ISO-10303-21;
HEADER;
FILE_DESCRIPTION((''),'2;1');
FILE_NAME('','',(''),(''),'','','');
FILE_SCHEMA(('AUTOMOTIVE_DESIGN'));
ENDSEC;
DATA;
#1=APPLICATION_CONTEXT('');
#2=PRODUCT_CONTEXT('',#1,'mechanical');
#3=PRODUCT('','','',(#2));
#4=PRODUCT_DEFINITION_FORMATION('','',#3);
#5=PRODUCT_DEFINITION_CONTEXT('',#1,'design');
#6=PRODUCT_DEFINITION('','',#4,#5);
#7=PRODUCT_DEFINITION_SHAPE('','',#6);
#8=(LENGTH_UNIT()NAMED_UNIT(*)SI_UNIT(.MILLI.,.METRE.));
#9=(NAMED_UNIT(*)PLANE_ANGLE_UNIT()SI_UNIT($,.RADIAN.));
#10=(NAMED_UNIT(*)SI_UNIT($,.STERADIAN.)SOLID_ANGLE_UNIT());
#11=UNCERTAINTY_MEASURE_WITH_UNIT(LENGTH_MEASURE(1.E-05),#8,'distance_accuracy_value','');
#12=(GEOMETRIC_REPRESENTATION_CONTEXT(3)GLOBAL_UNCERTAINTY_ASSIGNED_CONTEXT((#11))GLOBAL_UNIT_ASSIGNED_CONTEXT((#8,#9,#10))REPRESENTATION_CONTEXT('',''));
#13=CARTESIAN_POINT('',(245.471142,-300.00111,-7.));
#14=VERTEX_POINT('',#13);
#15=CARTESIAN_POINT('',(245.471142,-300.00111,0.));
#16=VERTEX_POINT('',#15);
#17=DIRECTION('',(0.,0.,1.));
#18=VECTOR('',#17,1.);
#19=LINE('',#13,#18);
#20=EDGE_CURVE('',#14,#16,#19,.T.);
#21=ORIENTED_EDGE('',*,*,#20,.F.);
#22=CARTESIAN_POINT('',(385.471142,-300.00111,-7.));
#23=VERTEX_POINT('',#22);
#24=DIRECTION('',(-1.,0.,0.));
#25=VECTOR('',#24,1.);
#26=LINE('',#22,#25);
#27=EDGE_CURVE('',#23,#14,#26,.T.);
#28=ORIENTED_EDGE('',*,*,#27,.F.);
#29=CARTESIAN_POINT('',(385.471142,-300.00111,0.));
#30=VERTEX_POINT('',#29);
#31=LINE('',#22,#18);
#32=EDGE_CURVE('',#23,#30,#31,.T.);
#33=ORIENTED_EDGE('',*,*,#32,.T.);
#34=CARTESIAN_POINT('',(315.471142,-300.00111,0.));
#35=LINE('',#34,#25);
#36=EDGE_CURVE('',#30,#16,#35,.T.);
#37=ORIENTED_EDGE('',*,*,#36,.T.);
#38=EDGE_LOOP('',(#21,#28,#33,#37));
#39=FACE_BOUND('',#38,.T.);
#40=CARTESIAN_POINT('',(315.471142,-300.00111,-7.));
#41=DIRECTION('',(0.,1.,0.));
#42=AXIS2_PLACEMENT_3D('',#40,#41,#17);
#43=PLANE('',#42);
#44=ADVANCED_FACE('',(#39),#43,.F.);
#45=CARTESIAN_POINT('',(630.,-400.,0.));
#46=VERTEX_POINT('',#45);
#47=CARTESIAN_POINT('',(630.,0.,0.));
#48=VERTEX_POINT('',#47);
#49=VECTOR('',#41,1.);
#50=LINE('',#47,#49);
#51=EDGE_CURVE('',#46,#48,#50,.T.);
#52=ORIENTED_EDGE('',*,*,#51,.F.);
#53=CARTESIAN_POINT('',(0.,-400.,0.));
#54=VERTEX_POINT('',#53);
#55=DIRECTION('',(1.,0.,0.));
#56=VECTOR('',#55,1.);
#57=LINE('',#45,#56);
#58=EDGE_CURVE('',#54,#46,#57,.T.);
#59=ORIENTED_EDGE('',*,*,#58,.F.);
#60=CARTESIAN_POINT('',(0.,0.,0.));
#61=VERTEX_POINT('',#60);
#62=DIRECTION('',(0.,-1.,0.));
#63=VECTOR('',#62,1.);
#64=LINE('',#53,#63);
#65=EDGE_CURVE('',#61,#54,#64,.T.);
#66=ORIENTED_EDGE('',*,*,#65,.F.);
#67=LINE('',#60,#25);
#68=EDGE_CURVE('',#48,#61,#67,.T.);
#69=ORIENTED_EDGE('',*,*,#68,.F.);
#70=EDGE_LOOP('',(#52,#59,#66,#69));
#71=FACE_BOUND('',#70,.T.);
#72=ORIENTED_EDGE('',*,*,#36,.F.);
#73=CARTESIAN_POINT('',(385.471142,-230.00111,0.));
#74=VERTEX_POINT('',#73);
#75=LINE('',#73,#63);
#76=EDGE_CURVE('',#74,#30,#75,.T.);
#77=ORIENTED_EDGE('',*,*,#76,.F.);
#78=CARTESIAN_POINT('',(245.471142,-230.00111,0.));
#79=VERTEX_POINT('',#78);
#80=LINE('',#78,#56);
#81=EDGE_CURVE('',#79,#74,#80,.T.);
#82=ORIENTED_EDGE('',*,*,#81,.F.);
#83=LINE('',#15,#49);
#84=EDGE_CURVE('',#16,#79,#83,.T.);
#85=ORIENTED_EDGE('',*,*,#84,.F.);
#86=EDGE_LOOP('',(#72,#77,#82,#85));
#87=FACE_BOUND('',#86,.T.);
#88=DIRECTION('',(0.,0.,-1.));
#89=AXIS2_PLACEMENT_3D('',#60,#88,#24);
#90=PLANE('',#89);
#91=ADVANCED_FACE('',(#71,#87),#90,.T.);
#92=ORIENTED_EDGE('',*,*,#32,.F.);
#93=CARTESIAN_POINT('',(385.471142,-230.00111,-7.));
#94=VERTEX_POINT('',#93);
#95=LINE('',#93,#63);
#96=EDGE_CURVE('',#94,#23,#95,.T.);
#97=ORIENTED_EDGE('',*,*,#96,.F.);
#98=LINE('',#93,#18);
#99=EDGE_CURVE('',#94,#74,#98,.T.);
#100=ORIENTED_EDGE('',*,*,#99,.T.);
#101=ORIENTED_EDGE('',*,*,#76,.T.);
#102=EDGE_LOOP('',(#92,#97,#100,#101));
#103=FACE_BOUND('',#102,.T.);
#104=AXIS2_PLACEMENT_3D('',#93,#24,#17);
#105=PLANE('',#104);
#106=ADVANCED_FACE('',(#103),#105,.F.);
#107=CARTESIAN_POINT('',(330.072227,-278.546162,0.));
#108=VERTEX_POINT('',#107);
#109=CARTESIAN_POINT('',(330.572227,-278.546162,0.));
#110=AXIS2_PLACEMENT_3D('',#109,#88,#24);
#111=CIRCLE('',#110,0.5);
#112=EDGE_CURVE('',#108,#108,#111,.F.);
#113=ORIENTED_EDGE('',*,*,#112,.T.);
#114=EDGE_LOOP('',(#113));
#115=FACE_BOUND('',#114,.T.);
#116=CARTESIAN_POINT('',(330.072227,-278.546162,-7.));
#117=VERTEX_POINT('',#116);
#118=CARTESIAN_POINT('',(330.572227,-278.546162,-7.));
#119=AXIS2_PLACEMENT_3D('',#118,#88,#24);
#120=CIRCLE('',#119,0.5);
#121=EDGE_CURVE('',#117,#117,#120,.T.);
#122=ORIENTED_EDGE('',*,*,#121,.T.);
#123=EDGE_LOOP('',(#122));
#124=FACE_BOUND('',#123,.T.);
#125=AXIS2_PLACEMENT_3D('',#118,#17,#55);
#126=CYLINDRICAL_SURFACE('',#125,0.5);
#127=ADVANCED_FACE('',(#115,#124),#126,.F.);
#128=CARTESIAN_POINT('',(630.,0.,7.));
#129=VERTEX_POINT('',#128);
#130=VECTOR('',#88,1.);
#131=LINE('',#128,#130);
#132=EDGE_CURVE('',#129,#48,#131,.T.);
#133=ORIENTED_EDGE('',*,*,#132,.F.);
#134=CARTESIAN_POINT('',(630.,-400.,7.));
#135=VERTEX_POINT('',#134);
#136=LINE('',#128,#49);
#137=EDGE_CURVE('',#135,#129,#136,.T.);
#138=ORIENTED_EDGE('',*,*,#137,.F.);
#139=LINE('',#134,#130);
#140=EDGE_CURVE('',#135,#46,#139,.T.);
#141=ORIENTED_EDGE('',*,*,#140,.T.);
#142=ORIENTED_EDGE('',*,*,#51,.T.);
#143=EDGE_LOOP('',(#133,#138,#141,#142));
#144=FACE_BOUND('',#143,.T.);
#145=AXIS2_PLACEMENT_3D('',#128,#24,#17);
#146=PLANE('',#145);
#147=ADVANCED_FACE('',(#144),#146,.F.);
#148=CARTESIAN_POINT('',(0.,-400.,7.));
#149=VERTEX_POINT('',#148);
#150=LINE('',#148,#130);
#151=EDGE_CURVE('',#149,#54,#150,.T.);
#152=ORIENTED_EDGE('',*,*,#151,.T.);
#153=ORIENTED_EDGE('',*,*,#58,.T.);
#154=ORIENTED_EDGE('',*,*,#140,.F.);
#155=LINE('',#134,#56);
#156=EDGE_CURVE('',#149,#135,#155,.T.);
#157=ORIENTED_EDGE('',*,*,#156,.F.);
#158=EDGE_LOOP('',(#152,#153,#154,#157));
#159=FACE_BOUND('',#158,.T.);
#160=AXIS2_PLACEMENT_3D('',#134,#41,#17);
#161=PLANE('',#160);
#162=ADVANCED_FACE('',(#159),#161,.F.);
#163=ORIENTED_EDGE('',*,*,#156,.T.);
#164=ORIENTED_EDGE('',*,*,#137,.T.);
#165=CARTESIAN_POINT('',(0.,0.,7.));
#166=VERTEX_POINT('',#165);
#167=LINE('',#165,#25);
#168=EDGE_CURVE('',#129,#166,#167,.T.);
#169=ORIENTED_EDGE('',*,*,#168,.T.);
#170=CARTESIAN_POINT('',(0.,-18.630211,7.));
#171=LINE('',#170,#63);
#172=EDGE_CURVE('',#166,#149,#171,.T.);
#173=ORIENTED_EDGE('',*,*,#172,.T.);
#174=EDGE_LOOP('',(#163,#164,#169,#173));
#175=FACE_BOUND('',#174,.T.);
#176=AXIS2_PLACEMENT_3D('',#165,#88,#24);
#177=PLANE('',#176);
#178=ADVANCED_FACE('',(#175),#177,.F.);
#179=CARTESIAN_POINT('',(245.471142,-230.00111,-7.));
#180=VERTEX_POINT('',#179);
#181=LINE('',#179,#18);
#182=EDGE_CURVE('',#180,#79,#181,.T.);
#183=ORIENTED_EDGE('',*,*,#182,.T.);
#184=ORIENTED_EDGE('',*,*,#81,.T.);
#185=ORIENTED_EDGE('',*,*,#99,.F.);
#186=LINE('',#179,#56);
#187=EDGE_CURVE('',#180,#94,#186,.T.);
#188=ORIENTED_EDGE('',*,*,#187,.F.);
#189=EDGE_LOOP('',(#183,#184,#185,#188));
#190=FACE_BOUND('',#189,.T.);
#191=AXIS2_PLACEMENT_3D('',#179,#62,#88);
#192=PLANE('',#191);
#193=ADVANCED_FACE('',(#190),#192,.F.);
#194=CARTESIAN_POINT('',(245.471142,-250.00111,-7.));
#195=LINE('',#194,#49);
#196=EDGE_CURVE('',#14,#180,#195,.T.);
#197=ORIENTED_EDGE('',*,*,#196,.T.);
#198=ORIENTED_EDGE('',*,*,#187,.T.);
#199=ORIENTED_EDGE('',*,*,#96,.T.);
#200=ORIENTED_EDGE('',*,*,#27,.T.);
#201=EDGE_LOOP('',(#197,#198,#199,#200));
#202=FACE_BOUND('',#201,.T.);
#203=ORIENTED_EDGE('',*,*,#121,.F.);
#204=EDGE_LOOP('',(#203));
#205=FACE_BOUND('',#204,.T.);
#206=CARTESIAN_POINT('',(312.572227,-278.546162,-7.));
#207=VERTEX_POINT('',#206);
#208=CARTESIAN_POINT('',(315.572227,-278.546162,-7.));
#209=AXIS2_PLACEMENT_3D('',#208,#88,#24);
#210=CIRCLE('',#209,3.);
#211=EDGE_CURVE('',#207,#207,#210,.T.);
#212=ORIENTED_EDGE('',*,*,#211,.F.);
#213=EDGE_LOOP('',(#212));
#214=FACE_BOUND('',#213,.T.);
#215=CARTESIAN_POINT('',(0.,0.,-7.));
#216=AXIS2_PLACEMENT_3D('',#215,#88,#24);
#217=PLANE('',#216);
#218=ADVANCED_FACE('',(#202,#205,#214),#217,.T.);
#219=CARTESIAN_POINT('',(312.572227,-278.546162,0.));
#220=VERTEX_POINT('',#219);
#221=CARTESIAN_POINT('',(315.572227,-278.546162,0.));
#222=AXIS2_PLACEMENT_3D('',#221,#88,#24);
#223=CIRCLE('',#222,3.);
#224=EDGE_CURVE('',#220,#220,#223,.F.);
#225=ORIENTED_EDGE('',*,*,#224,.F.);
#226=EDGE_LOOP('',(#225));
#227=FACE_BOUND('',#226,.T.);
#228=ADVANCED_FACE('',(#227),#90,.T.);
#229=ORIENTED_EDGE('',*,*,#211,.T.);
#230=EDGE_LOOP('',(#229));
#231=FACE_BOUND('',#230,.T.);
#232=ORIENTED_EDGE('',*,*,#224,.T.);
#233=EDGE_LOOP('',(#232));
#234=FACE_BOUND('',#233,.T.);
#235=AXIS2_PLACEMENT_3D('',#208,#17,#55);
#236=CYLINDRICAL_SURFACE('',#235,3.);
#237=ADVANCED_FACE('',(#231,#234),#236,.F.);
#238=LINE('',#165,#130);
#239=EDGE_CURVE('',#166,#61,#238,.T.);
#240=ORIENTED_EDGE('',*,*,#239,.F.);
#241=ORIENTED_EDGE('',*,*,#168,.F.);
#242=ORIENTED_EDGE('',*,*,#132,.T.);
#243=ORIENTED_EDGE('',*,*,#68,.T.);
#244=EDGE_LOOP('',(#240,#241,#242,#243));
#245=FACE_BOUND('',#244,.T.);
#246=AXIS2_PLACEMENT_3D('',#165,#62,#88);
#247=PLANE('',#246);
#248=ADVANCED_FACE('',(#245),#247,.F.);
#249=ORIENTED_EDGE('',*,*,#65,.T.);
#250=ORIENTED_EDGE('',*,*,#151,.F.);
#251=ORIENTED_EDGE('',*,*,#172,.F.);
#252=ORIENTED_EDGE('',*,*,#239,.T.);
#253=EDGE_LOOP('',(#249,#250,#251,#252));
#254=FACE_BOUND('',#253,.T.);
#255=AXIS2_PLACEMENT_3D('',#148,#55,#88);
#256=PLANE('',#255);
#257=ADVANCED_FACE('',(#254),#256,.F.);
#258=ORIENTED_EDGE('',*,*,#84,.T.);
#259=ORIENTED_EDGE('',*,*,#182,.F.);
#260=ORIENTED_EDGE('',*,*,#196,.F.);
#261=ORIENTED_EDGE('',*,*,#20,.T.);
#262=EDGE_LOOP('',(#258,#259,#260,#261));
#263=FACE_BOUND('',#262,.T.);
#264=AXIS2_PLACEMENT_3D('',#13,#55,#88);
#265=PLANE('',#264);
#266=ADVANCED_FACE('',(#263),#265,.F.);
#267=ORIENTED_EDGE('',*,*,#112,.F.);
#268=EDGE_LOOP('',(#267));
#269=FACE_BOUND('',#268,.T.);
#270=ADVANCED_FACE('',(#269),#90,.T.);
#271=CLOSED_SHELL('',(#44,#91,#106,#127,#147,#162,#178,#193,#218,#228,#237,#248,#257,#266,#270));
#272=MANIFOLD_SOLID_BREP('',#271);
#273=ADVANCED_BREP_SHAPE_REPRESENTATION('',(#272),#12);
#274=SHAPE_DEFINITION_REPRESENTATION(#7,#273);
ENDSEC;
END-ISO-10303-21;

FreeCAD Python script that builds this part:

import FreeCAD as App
import Part
import Sketcher

V = App.Vector
Q = App.Units.Quantity


def add_polygon(sketch, points):
    """Adds a closed chain of lines whose ends are joined by coincident constraints."""
    first, n = sketch.GeometryCount, len(points)
    for a, b in zip(points, points[1:] + points[:1]):
        sketch.addGeometry(Part.LineSegment(App.Vector(*a, 0), App.Vector(*b, 0)), False)
    for i in range(n):
        sketch.addConstraint(Sketcher.Constraint("Coincident", first + i, 2, first + (i + 1) % n, 1))

doc = App.newDocument("Part")
body = doc.addObject("PartDesign::Body", "Body")

# Sketch on XY plane
sketch1 = body.newObject("Sketcher::SketchObject", "Sketch")
sketch1.AttachmentSupport = (doc.getObject("XY_Plane"), [""])
sketch1.MapMode = "FlatFace"
add_polygon(sketch1, [(630, 0), (0, 0), (0, -400), (630, -400)])  # lines 0-3
sketch1.addConstraint(Sketcher.Constraint("Horizontal", 0))
sketch1.addConstraint(Sketcher.Constraint("Vertical", 1))
sketch1.addConstraint(Sketcher.Constraint("Horizontal", 2))
sketch1.addConstraint(Sketcher.Constraint("Vertical", 3))
sketch1.addConstraint(Sketcher.Constraint("Coincident", 0, 2, -1, 1))
sketch1.addConstraint(Sketcher.Constraint("DistanceX", 0, 2, 0, 1, Q("630 mm")))
sketch1.addConstraint(Sketcher.Constraint("DistanceY", 1, 2, 1, 1, Q("400 mm")))
pad1 = body.newObject("PartDesign::Pad", "Pad")
pad1.Profile = sketch1
pad1.Length = 7

# Sketch on XY plane
sketch2 = body.newObject("Sketcher::SketchObject", "Sketch001")
sketch2.AttachmentSupport = (doc.getObject("XY_Plane"), [""])
sketch2.MapMode = "FlatFace"
add_polygon(sketch2, [(245.471142, -300.00111), (245.471142, -230.00111), (385.471142, -230.00111), (385.471142, -300.00111)])  # lines 0-3
sketch2.addGeometry(Part.Circle(V(330.572227, -278.546162, 0), V(0, 0, 1), 0.5), False)  # 4
sketch2.addGeometry(Part.Circle(V(315.572227, -278.546162, 0), V(0, 0, 1), 3), False)  # 5
sketch2.addConstraint(Sketcher.Constraint("Vertical", 0))
sketch2.addConstraint(Sketcher.Constraint("Horizontal", 1))
sketch2.addConstraint(Sketcher.Constraint("Vertical", 2))
sketch2.addConstraint(Sketcher.Constraint("Horizontal", 3))
sketch2.addConstraint(Sketcher.Constraint("Horizontal", 4, 3, 5, 3))
sketch2.addConstraint(Sketcher.Constraint("Diameter", 4, Q("1 mm")))
sketch2.addConstraint(Sketcher.Constraint("Diameter", 5, Q("6 mm")))
sketch2.addConstraint(Sketcher.Constraint("DistanceX", 1, 1, 1, 2, Q("140 mm")))
sketch2.addConstraint(Sketcher.Constraint("DistanceY", 0, 1, 0, 2, Q("70 mm")))
sketch2.addConstraint(Sketcher.Constraint("DistanceX", 5, 3, 4, 3, Q("15 mm")))
sketch2.addConstraint(Sketcher.Constraint("DistanceY", 0, 2, -1, 1, Q("230.00111 mm")))
sketch2.addConstraint(Sketcher.Constraint("DistanceX", -1, 1, 4, 3, Q("330.572227 mm")))
sketch2.addConstraint(Sketcher.Constraint("DistanceY", 4, 3, -1, 1, Q("278.546162 mm")))
sketch2.addConstraint(Sketcher.Constraint("DistanceX", -1, 1, 0, 2, Q("245.471142 mm")))
pad2 = body.newObject("PartDesign::Pad", "Pad001")
pad2.Profile = sketch2
pad2.Length = 7
pad2.Reversed = True

doc.recompute()
